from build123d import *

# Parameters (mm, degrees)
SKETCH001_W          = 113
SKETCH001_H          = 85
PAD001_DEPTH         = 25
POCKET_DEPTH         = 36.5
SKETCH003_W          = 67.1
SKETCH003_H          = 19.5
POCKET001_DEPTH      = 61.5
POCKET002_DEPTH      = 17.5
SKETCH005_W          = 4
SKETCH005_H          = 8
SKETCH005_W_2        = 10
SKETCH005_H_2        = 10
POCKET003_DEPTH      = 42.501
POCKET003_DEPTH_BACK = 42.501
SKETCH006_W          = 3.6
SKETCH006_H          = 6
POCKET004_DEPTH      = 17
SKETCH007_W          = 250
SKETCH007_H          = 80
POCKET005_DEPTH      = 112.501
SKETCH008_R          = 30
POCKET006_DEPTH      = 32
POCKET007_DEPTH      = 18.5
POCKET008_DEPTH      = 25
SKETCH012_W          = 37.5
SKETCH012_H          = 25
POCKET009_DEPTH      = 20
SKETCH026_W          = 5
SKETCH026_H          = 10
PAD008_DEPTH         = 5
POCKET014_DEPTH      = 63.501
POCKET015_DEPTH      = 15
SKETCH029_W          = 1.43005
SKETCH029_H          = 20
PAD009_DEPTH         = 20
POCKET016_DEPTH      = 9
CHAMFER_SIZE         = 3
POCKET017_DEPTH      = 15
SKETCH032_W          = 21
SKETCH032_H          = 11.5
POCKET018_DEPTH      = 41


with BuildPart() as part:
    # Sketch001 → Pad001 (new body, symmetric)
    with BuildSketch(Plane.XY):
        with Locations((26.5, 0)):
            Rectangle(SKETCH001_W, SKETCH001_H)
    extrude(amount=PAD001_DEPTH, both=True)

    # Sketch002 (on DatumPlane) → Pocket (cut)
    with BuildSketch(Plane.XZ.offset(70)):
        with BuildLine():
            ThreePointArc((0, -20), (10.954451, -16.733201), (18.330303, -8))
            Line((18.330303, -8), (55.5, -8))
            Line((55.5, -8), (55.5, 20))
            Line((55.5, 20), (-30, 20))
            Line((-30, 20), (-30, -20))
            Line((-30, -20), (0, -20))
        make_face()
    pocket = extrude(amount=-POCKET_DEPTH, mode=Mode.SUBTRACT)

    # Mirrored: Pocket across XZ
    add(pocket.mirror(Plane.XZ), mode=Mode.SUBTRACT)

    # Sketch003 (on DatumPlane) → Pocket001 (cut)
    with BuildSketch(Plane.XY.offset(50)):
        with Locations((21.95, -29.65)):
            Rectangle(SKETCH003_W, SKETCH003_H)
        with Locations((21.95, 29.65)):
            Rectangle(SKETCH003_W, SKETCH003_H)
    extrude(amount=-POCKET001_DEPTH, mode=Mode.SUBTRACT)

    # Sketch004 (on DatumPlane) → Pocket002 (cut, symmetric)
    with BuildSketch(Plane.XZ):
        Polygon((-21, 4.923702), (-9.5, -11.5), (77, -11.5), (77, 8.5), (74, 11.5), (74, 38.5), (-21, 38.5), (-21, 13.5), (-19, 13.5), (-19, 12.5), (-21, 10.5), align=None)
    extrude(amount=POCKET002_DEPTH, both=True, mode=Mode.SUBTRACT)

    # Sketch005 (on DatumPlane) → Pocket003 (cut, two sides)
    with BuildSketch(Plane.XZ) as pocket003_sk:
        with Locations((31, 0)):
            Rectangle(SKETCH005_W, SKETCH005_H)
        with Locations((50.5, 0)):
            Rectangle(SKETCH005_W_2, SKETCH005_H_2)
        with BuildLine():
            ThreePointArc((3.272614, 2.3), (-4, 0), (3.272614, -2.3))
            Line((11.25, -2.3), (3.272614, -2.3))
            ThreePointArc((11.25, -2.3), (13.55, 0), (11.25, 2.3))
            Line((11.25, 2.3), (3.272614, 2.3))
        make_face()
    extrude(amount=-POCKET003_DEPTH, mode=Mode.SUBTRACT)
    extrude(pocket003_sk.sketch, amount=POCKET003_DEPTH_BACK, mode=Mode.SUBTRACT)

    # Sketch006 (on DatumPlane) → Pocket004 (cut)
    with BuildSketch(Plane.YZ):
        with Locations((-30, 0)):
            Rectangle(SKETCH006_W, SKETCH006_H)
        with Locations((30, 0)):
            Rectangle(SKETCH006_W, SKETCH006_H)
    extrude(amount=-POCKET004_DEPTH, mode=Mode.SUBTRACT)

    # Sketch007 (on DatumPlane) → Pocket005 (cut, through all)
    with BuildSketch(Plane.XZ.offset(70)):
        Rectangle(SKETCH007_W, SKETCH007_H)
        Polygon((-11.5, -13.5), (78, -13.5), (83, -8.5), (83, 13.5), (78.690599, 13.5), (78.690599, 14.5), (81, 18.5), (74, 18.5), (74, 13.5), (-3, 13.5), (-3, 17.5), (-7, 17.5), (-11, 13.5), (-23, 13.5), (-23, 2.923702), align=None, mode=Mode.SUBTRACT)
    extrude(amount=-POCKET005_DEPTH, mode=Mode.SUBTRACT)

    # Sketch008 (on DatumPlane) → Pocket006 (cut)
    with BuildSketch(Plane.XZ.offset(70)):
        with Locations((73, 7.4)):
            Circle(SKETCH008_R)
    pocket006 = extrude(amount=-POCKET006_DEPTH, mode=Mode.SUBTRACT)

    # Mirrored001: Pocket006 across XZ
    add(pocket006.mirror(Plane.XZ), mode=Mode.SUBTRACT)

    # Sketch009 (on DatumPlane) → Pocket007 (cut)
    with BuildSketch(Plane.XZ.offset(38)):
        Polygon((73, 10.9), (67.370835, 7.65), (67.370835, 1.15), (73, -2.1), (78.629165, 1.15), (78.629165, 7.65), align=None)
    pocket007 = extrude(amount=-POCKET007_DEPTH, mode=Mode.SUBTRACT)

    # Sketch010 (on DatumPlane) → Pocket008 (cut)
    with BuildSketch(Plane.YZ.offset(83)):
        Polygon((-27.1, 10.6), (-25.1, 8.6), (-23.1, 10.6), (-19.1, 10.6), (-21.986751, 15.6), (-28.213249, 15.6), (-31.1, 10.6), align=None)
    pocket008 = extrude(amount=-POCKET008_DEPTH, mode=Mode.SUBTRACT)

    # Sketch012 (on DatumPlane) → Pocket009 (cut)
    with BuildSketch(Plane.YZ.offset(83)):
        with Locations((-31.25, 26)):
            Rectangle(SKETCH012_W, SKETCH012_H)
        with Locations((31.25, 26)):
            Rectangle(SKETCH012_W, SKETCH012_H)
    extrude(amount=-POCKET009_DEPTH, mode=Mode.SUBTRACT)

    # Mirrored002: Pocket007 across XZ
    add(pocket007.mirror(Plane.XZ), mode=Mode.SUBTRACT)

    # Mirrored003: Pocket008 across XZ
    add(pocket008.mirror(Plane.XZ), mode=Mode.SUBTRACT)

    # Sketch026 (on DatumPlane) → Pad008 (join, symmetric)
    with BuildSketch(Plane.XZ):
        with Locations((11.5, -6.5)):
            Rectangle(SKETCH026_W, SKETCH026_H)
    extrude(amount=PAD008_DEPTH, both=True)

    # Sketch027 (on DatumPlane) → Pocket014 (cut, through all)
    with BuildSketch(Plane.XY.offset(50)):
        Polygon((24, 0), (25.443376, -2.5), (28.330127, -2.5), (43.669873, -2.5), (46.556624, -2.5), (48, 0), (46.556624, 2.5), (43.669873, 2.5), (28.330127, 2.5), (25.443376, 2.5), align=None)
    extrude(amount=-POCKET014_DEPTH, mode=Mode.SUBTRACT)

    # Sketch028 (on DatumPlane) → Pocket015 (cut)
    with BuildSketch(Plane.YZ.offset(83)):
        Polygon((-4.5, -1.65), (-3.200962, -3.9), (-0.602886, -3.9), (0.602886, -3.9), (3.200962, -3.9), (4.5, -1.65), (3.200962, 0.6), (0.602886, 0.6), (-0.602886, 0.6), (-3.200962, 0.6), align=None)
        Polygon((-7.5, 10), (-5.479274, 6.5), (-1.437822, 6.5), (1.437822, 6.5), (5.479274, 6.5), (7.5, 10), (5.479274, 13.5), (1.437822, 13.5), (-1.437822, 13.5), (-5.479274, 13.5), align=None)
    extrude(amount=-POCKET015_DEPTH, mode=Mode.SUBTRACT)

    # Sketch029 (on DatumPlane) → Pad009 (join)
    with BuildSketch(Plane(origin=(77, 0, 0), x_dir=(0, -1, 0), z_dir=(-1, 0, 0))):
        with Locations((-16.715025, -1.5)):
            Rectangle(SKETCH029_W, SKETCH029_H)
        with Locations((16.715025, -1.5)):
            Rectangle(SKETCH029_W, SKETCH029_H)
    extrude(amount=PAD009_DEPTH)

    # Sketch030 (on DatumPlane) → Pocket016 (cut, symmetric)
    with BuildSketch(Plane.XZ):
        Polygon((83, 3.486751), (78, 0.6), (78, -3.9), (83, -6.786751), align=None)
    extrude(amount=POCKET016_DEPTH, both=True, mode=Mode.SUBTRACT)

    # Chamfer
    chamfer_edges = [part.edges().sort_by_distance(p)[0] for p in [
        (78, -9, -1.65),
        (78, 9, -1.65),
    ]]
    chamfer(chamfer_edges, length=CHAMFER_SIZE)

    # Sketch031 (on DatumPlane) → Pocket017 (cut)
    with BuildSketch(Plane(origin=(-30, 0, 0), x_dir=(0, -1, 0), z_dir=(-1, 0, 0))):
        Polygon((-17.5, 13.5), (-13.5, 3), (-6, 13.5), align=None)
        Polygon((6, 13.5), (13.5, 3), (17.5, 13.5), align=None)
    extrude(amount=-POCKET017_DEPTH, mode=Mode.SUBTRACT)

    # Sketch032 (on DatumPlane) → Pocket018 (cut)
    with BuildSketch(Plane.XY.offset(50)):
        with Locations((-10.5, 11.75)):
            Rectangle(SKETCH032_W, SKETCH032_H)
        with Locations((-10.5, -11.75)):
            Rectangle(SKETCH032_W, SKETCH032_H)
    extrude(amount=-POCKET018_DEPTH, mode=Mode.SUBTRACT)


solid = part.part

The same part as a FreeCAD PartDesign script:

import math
import FreeCAD as App
import Part
import Sketcher

V = App.Vector
Q = App.Units.Quantity


def edges_at(feature, points):
    """Names of the edges that pass closest to the given points."""
    edges = feature.Shape.Edges
    near = lambda p: min(range(len(edges)), key=lambda i: edges[i].distToShape(Part.Vertex(*p))[0])
    return sorted({f"Edge{near(p) + 1}" for p in points})

doc = App.newDocument("Part")
body = doc.addObject("PartDesign::Body", "Body")

sketch1 = doc.addObject("Sketcher::SketchObject", "Sketch")
body.addObject(sketch1)
sketch1.AttachmentSupport = (doc.XY_Plane, [""])
sketch1.MapMode = "FlatFace"
sketch1.addGeometry(Part.LineSegment(V(-30, 42.5, 0), V(-30, -42.5, 0)), False)
sketch1.addGeometry(Part.LineSegment(V(-30, -42.5, 0), V(83, -42.5, 0)), False)
sketch1.addGeometry(Part.LineSegment(V(83, -42.5, 0), V(83, 42.5, 0)), False)
sketch1.addGeometry(Part.LineSegment(V(83, 42.5, 0), V(-30, 42.5, 0)), False)
sketch1.addConstraint(Sketcher.Constraint("Coincident", 0, 2, 1, 1))
sketch1.addConstraint(Sketcher.Constraint("Coincident", 1, 2, 2, 1))
sketch1.addConstraint(Sketcher.Constraint("Coincident", 2, 2, 3, 1))
sketch1.addConstraint(Sketcher.Constraint("Coincident", 3, 2, 0, 1))
sketch1.addConstraint(Sketcher.Constraint("Vertical", 0))
sketch1.addConstraint(Sketcher.Constraint("Horizontal", 1))
sketch1.addConstraint(Sketcher.Constraint("Vertical", 2))
sketch1.addConstraint(Sketcher.Constraint("Horizontal", 3))
sketch1.addConstraint(Sketcher.Constraint("DistanceX", 1, 1, 1, 2, 113.0))
sketch1.addConstraint(Sketcher.Constraint("DistanceY", 0, 2, 0, 1, 85.0))
sketch1.addConstraint(Sketcher.Constraint("DistanceX", 0, 2, -1, 1, 30.0))
sketch1.addConstraint(Sketcher.Constraint("DistanceY", 0, 2, -1, 1, 42.5))
pad1 = doc.addObject("PartDesign::Pad", "Pad")
body.addObject(pad1)
pad1.Profile = sketch1
pad1.Length = 50
pad1.Midplane = True

sketch2 = doc.addObject("Sketcher::SketchObject", "Sketch001")
body.addObject(sketch2)
sketch2.AttachmentSupport = (doc.XZ_Plane, [""])
sketch2.MapMode = "FlatFace"
sketch2.AttachmentOffset = App.Placement(V(0, 0, 70), App.Rotation())
sketch2.addGeometry(Part.ArcOfCircle(Part.Circle(V(0.000001, -0.000001, 0), V(0, 0, 1), 19.999999), math.radians(-90.000002), math.radians(-23.578177)), False)
sketch2.addGeometry(Part.LineSegment(V(18.330303, -8, 0), V(55.5, -8, 0)), False)
sketch2.addGeometry(Part.LineSegment(V(55.5, -8, 0), V(55.5, 20, 0)), False)
sketch2.addGeometry(Part.LineSegment(V(55.5, 20, 0), V(-30, 20, 0)), False)
sketch2.addGeometry(Part.LineSegment(V(-30, 20, 0), V(-30, -20, 0)), False)
sketch2.addGeometry(Part.LineSegment(V(-30, -20, 0), V(0, -20, 0)), False)
sketch2.addConstraint(Sketcher.Constraint("Coincident", 0, 2, 1, 1))
sketch2.addConstraint(Sketcher.Constraint("Coincident", 1, 2, 2, 1))
sketch2.addConstraint(Sketcher.Constraint("Coincident", 2, 2, 3, 1))
sketch2.addConstraint(Sketcher.Constraint("Coincident", 3, 2, 4, 1))
sketch2.addConstraint(Sketcher.Constraint("Coincident", 4, 2, 5, 1))
sketch2.addConstraint(Sketcher.Constraint("Tangent", 5, 2, 0, 1))
sketch2.addConstraint(Sketcher.Constraint("Horizontal", 1))
sketch2.addConstraint(Sketcher.Constraint("Vertical", 2))
sketch2.addConstraint(Sketcher.Constraint("Horizontal", 3))
sketch2.addConstraint(Sketcher.Constraint("Vertical", 4))
sketch2.addConstraint(Sketcher.Constraint("Horizontal", 5))
sketch2.addConstraint(Sketcher.Constraint("Coincident", 0, 3, -1, 1))
sketch2.addConstraint(Sketcher.Constraint("Radius", 0, 19.999999))
sketch2.addConstraint(Sketcher.Constraint("DistanceX", 5, 1, 5, 2, 30.0))
sketch2.addConstraint(Sketcher.Constraint("DistanceY", 2, 1, 2, 2, 28.0))
sketch2.addConstraint(Sketcher.Constraint("DistanceY", 4, 2, 4, 1, 40.0))
sketch2.addConstraint(Sketcher.Constraint("DistanceX", 3, 2, 3, 1, 85.5))
pocket1 = doc.addObject("PartDesign::Pocket", "Pocket")
body.addObject(pocket1)
pocket1.Profile = sketch2
pocket1.Length = 36.5
doc.recompute()

mirrored = doc.addObject("PartDesign::Mirrored", "Mirrored")
body.addObject(mirrored)
mirrored.Originals = [pocket1]
mirrored.MirrorPlane = (doc.XZ_Plane, [""])
body.Tip = mirrored

sketch3 = doc.addObject("Sketcher::SketchObject", "Sketch002")
body.addObject(sketch3)
sketch3.AttachmentSupport = (doc.XY_Plane, [""])
sketch3.MapMode = "FlatFace"
sketch3.AttachmentOffset = App.Placement(V(0, 0, 50), App.Rotation())
sketch3.addGeometry(Part.LineSegment(V(-11.6, -19.9, 0), V(-11.6, -39.4, 0)), False)
sketch3.addGeometry(Part.LineSegment(V(-11.6, -39.4, 0), V(55.5, -39.4, 0)), False)
sketch3.addGeometry(Part.LineSegment(V(55.5, -39.4, 0), V(55.5, -19.9, 0)), False)
sketch3.addGeometry(Part.LineSegment(V(55.5, -19.9, 0), V(-11.6, -19.9, 0)), False)
sketch3.addGeometry(Part.LineSegment(V(-11.6, 39.4, 0), V(-11.6, 19.9, 0)), False)
sketch3.addGeometry(Part.LineSegment(V(-11.6, 19.9, 0), V(55.5, 19.9, 0)), False)
sketch3.addGeometry(Part.LineSegment(V(55.5, 19.9, 0), V(55.5, 39.4, 0)), False)
sketch3.addGeometry(Part.LineSegment(V(55.5, 39.4, 0), V(-11.6, 39.4, 0)), False)
sketch3.addConstraint(Sketcher.Constraint("Coincident", 0, 2, 1, 1))
sketch3.addConstraint(Sketcher.Constraint("Coincident", 1, 2, 2, 1))
sketch3.addConstraint(Sketcher.Constraint("Coincident", 2, 2, 3, 1))
sketch3.addConstraint(Sketcher.Constraint("Coincident", 3, 2, 0, 1))
sketch3.addConstraint(Sketcher.Constraint("Coincident", 4, 2, 5, 1))
sketch3.addConstraint(Sketcher.Constraint("Coincident", 5, 2, 6, 1))
sketch3.addConstraint(Sketcher.Constraint("Coincident", 6, 2, 7, 1))
sketch3.addConstraint(Sketcher.Constraint("Coincident", 7, 2, 4, 1))
sketch3.addConstraint(Sketcher.Constraint("Vertical", 0))
sketch3.addConstraint(Sketcher.Constraint("Horizontal", 1))
sketch3.addConstraint(Sketcher.Constraint("Vertical", 2))
sketch3.addConstraint(Sketcher.Constraint("Horizontal", 3))
sketch3.addConstraint(Sketcher.Constraint("Vertical", 4))
sketch3.addConstraint(Sketcher.Constraint("Horizontal", 5))
sketch3.addConstraint(Sketcher.Constraint("Vertical", 6))
sketch3.addConstraint(Sketcher.Constraint("Horizontal", 7))
sketch3.addConstraint(Sketcher.Constraint("Symmetric", 3, 2, 4, 2, -1))
sketch3.addConstraint(Sketcher.Constraint("Symmetric", 1, 2, 6, 2, -1))
sketch3.addConstraint(Sketcher.Constraint("DistanceX", 1, 1, 1, 2, 67.1))
sketch3.addConstraint(Sketcher.Constraint("DistanceY", 0, 2, 0, 1, 19.5))
sketch3.addConstraint(Sketcher.Constraint("DistanceX", 0, 2, -1, 1, 11.6))
sketch3.addConstraint(Sketcher.Constraint("DistanceY", 0, 2, -1, 1, 39.4))
pocket2 = doc.addObject("PartDesign::Pocket", "Pocket001")
body.addObject(pocket2)
pocket2.Profile = sketch3
pocket2.Length = 61.5

sketch4 = doc.addObject("Sketcher::SketchObject", "Sketch003")
body.addObject(sketch4)
sketch4.AttachmentSupport = (doc.XZ_Plane, [""])
sketch4.MapMode = "FlatFace"
sketch4.addGeometry(Part.LineSegment(V(-21, 4.923702, 0), V(-9.5, -11.5, 0)), False)
sketch4.addGeometry(Part.LineSegment(V(-9.5, -11.5, 0), V(77, -11.5, 0)), False)
sketch4.addGeometry(Part.LineSegment(V(77, -11.5, 0), V(77, 8.5, 0)), False)
sketch4.addGeometry(Part.LineSegment(V(77, 8.5, 0), V(74, 11.5, 0)), False)
sketch4.addGeometry(Part.LineSegment(V(74, 11.5, 0), V(74, 38.5, 0)), False)
sketch4.addGeometry(Part.LineSegment(V(74, 38.5, 0), V(-21, 38.5, 0)), False)
sketch4.addGeometry(Part.LineSegment(V(-21, 38.5, 0), V(-21, 13.5, 0)), False)
sketch4.addGeometry(Part.LineSegment(V(-21, 13.5, 0), V(-19, 13.5, 0)), False)
sketch4.addGeometry(Part.LineSegment(V(-19, 13.5, 0), V(-19, 12.5, 0)), False)
sketch4.addGeometry(Part.LineSegment(V(-19, 12.5, 0), V(-21, 10.5, 0)), False)
sketch4.addGeometry(Part.LineSegment(V(-21, 10.5, 0), V(-21, 4.923702, 0)), False)
sketch4.addConstraint(Sketcher.Constraint("Coincident", 0, 2, 1, 1))
sketch4.addConstraint(Sketcher.Constraint("Coincident", 1, 2, 2, 1))
sketch4.addConstraint(Sketcher.Constraint("Coincident", 2, 2, 3, 1))
sketch4.addConstraint(Sketcher.Constraint("Coincident", 3, 2, 4, 1))
sketch4.addConstraint(Sketcher.Constraint("Coincident", 4, 2, 5, 1))
sketch4.addConstraint(Sketcher.Constraint("Coincident", 5, 2, 6, 1))
sketch4.addConstraint(Sketcher.Constraint("Coincident", 6, 2, 7, 1))
sketch4.addConstraint(Sketcher.Constraint("Coincident", 7, 2, 8, 1))
sketch4.addConstraint(Sketcher.Constraint("Coincident", 8, 2, 9, 1))
sketch4.addConstraint(Sketcher.Constraint("Coincident", 9, 2, 10, 1))
sketch4.addConstraint(Sketcher.Constraint("Coincident", 10, 2, 0, 1))
sketch4.addConstraint(Sketcher.Constraint("Horizontal", 1))
sketch4.addConstraint(Sketcher.Constraint("Vertical", 2))
sketch4.addConstraint(Sketcher.Constraint("Vertical", 4))
sketch4.addConstraint(Sketcher.Constraint("Horizontal", 5))
sketch4.addConstraint(Sketcher.Constraint("Vertical", 6))
sketch4.addConstraint(Sketcher.Constraint("Horizontal", 7))
sketch4.addConstraint(Sketcher.Constraint("Vertical", 8))
sketch4.addConstraint(Sketcher.Constraint("Vertical", 10))
sketch4.addConstraint(Sketcher.Constraint("Perpendicular", 3, 9))
sketch4.addConstraint(Sketcher.Constraint("Vertical", 6, 2, 9, 2))
sketch4.addConstraint(Sketcher.Constraint("DistanceX", 5, 2, 5, 1, 95.0))
sketch4.addConstraint(Sketcher.Constraint("DistanceX", 7, 1, 7, 2, 2.0))
sketch4.addConstraint(Sketcher.Constraint("DistanceY", 2, 1, 2, 2, 20.0))
sketch4.addConstraint(Sketcher.Constraint("DistanceY", 4, 1, 4, 2, 27.0))
sketch4.addConstraint(Sketcher.Constraint("DistanceY", 6, 2, 6, 1, 25.0))
sketch4.addConstraint(Sketcher.Constraint("DistanceY", 8, 2, 8, 1, 1.0))
sketch4.addConstraint(Sketcher.Constraint("Angle", 0, Q("-55 deg")))
sketch4.addConstraint(Sketcher.Constraint("Angle", 3, Q("135 deg")))
sketch4.addConstraint(Sketcher.Constraint("DistanceX", 1, 1, 1, 2, 86.5))
sketch4.addConstraint(Sketcher.Constraint("DistanceX", -1, 1, 1, 2, 77.0))
sketch4.addConstraint(Sketcher.Constraint("DistanceX", -1, 1, 3, 2, 74.0))
sketch4.addConstraint(Sketcher.Constraint("DistanceY", 0, 2, -1, 1, 11.5))
pocket3 = doc.addObject("PartDesign::Pocket", "Pocket002")
body.addObject(pocket3)
pocket3.Profile = sketch4
pocket3.Length = 35
pocket3.Midplane = True

sketch5 = doc.addObject("Sketcher::SketchObject", "Sketch004")
body.addObject(sketch5)
sketch5.AttachmentSupport = (doc.XZ_Plane, [""])
sketch5.MapMode = "FlatFace"
sketch5.addGeometry(Part.LineSegment(V(29, 4, 0), V(29, -4, 0)), False)
sketch5.addGeometry(Part.LineSegment(V(29, -4, 0), V(33, -4, 0)), False)
sketch5.addGeometry(Part.LineSegment(V(33, -4, 0), V(33, 4, 0)), False)
sketch5.addGeometry(Part.LineSegment(V(33, 4, 0), V(29, 4, 0)), False)
sketch5.addGeometry(Part.LineSegment(V(45.5, 5, 0), V(45.5, -5, 0)), False)
sketch5.addGeometry(Part.LineSegment(V(45.5, -5, 0), V(55.5, -5, 0)), False)
sketch5.addGeometry(Part.LineSegment(V(55.5, -5, 0), V(55.5, 5, 0)), False)
sketch5.addGeometry(Part.LineSegment(V(55.5, 5, 0), V(45.5, 5, 0)), False)
sketch5.addGeometry(Part.ArcOfCircle(Part.Circle(V(0, 0, 0), V(0, 0, 1), 4), math.radians(35.099631), math.radians(324.900369)), False)
sketch5.addGeometry(Part.LineSegment(V(3.272614, -2.3, 0), V(11.25, -2.3, 0)), False)
sketch5.addGeometry(Part.ArcOfCircle(Part.Circle(V(11.25, 0, 0), V(0, 0, 1), 2.3), math.radians(-90), math.radians(90)), False)
sketch5.addGeometry(Part.LineSegment(V(11.25, 2.3, 0), V(3.272614, 2.3, 0)), False)
sketch5.addConstraint(Sketcher.Constraint("Coincident", 0, 2, 1, 1))
sketch5.addConstraint(Sketcher.Constraint("Coincident", 1, 2, 2, 1))
sketch5.addConstraint(Sketcher.Constraint("Coincident", 2, 2, 3, 1))
sketch5.addConstraint(Sketcher.Constraint("Coincident", 3, 2, 0, 1))
sketch5.addConstraint(Sketcher.Constraint("Coincident", 4, 2, 5, 1))
sketch5.addConstraint(Sketcher.Constraint("Coincident", 5, 2, 6, 1))
sketch5.addConstraint(Sketcher.Constraint("Coincident", 6, 2, 7, 1))
sketch5.addConstraint(Sketcher.Constraint("Coincident", 7, 2, 4, 1))
sketch5.addConstraint(Sketcher.Constraint("Coincident", 8, 2, 9, 1))
sketch5.addConstraint(Sketcher.Constraint("Tangent", 9, 2, 10, 1))
sketch5.addConstraint(Sketcher.Constraint("Tangent", 10, 2, 11, 1))
sketch5.addConstraint(Sketcher.Constraint("Coincident", 11, 2, 8, 1))
sketch5.addConstraint(Sketcher.Constraint("Vertical", 0))
sketch5.addConstraint(Sketcher.Constraint("Horizontal", 1))
sketch5.addConstraint(Sketcher.Constraint("Vertical", 2))
sketch5.addConstraint(Sketcher.Constraint("Horizontal", 3))
sketch5.addConstraint(Sketcher.Constraint("Vertical", 4))
sketch5.addConstraint(Sketcher.Constraint("Horizontal", 5))
sketch5.addConstraint(Sketcher.Constraint("Vertical", 6))
sketch5.addConstraint(Sketcher.Constraint("Horizontal", 7))
sketch5.addConstraint(Sketcher.Constraint("Horizontal", 9))
sketch5.addConstraint(Sketcher.Constraint("Horizontal", 11))
sketch5.addConstraint(Sketcher.Constraint("Coincident", 8, 3, -1, 1))
sketch5.addConstraint(Sketcher.Constraint("PointOnObject", 10, 3, -1))
sketch5.addConstraint(Sketcher.Constraint("Equal", 7, 4))
sketch5.addConstraint(Sketcher.Constraint("Radius", 8, 4.0))
sketch5.addConstraint(Sketcher.Constraint("Radius", 10, 2.3))
sketch5.addConstraint(Sketcher.Constraint("DistanceX", 1, 1, 1, 2, 4.0))
sketch5.addConstraint(Sketcher.Constraint("DistanceX", 5, 1, 5, 2, 10.0))
sketch5.addConstraint(Sketcher.Constraint("DistanceY", 0, 2, 0, 1, 8.0))
sketch5.addConstraint(Sketcher.Constraint("DistanceX", -1, 1, 0, 2, 29.0))
sketch5.addConstraint(Sketcher.Constraint("DistanceY", 0, 2, -1, 1, 4.0))
sketch5.addConstraint(Sketcher.Constraint("DistanceY", 4, 2, -1, 1, 5.0))
sketch5.addConstraint(Sketcher.Constraint("DistanceX", -1, 1, 4, 2, 45.5))
sketch5.addConstraint(Sketcher.Constraint("DistanceX", -1, 1, 10, 3, 11.25))
pocket4 = doc.addObject("PartDesign::Pocket", "Pocket003")
body.addObject(pocket4)
pocket4.Profile = sketch5
pocket4.Type = "ThroughAll"
pocket4.Midplane = True

sketch6 = doc.addObject("Sketcher::SketchObject", "Sketch005")
body.addObject(sketch6)
sketch6.AttachmentSupport = (doc.YZ_Plane, [""])
sketch6.MapMode = "FlatFace"
sketch6.addGeometry(Part.LineSegment(V(-31.8, 3, 0), V(-31.8, -3, 0)), False)
sketch6.addGeometry(Part.LineSegment(V(-31.8, -3, 0), V(-28.2, -3, 0)), False)
sketch6.addGeometry(Part.LineSegment(V(-28.2, -3, 0), V(-28.2, 3, 0)), False)
sketch6.addGeometry(Part.LineSegment(V(-28.2, 3, 0), V(-31.8, 3, 0)), False)
sketch6.addGeometry(Part.LineSegment(V(28.2, 3, 0), V(28.2, -3, 0)), False)
sketch6.addGeometry(Part.LineSegment(V(28.2, -3, 0), V(31.8, -3, 0)), False)
sketch6.addGeometry(Part.LineSegment(V(31.8, -3, 0), V(31.8, 3, 0)), False)
sketch6.addGeometry(Part.LineSegment(V(31.8, 3, 0), V(28.2, 3, 0)), False)
sketch6.addConstraint(Sketcher.Constraint("Coincident", 0, 2, 1, 1))
sketch6.addConstraint(Sketcher.Constraint("Coincident", 1, 2, 2, 1))
sketch6.addConstraint(Sketcher.Constraint("Coincident", 2, 2, 3, 1))
sketch6.addConstraint(Sketcher.Constraint("Coincident", 3, 2, 0, 1))
sketch6.addConstraint(Sketcher.Constraint("Coincident", 4, 2, 5, 1))
sketch6.addConstraint(Sketcher.Constraint("Coincident", 5, 2, 6, 1))
sketch6.addConstraint(Sketcher.Constraint("Coincident", 6, 2, 7, 1))
sketch6.addConstraint(Sketcher.Constraint("Coincident", 7, 2, 4, 1))
sketch6.addConstraint(Sketcher.Constraint("Vertical", 0))
sketch6.addConstraint(Sketcher.Constraint("Horizontal", 1))
sketch6.addConstraint(Sketcher.Constraint("Vertical", 2))
sketch6.addConstraint(Sketcher.Constraint("Horizontal", 3))
sketch6.addConstraint(Sketcher.Constraint("Vertical", 4))
sketch6.addConstraint(Sketcher.Constraint("Horizontal", 5))
sketch6.addConstraint(Sketcher.Constraint("Vertical", 6))
sketch6.addConstraint(Sketcher.Constraint("Horizontal", 7))
sketch6.addConstraint(Sketcher.Constraint("Symmetric", 2, 2, 4, 2, -1, 1))
sketch6.addConstraint(Sketcher.Constraint("Symmetric", 0, 2, 6, 2, -1, 1))
sketch6.addConstraint(Sketcher.Constraint("Horizontal", 1, 2, 4, 2))
sketch6.addConstraint(Sketcher.Constraint("DistanceY", 0, 2, 0, 1, 6.0))
sketch6.addConstraint(Sketcher.Constraint("DistanceX", 1, 1, 1, 2, 3.6))
sketch6.addConstraint(Sketcher.Constraint("DistanceX", 0, 2, 4, 2, 60.0))
pocket5 = doc.addObject("PartDesign::Pocket", "Pocket004")
body.addObject(pocket5)
pocket5.Profile = sketch6
pocket5.Length = 17

sketch7 = doc.addObject("Sketcher::SketchObject", "Sketch006")
body.addObject(sketch7)
sketch7.AttachmentSupport = (doc.XZ_Plane, [""])
sketch7.MapMode = "FlatFace"
sketch7.AttachmentOffset = App.Placement(V(0, 0, 70), App.Rotation())
sketch7.addGeometry(Part.LineSegment(V(-125, 40, 0), V(-125, -40, 0)), False)
sketch7.addGeometry(Part.LineSegment(V(-125, -40, 0), V(125, -40, 0)), False)
sketch7.addGeometry(Part.LineSegment(V(125, -40, 0), V(125, 40, 0)), False)
sketch7.addGeometry(Part.LineSegment(V(125, 40, 0), V(-125, 40, 0)), False)
sketch7.addGeometry(Part.LineSegment(V(78, -13.5, 0), V(-11.5, -13.5, 0)), False)
sketch7.addGeometry(Part.LineSegment(V(-11.5, -13.5, 0), V(-23, 2.923702, 0)), False)
sketch7.addGeometry(Part.LineSegment(V(-23, 2.923702, 0), V(-23, 13.5, 0)), False)
sketch7.addGeometry(Part.LineSegment(V(-23, 13.5, 0), V(-11, 13.5, 0)), False)
sketch7.addGeometry(Part.LineSegment(V(-11, 13.5, 0), V(-7, 17.5, 0)), False)
sketch7.addGeometry(Part.LineSegment(V(-7, 17.5, 0), V(-3, 17.5, 0)), False)
sketch7.addGeometry(Part.LineSegment(V(-3, 17.5, 0), V(-3, 13.5, 0)), False)
sketch7.addGeometry(Part.LineSegment(V(-3, 13.5, 0), V(74, 13.5, 0)), False)
sketch7.addGeometry(Part.LineSegment(V(74, 13.5, 0), V(74, 18.5, 0)), False)
sketch7.addGeometry(Part.LineSegment(V(74, 18.5, 0), V(81, 18.5, 0)), False)
sketch7.addGeometry(Part.LineSegment(V(81, 18.5, 0), V(78.690599, 14.5, 0)), False)
sketch7.addGeometry(Part.LineSegment(V(78.690599, 14.5, 0), V(78.690599, 13.5, 0)), False)
sketch7.addGeometry(Part.LineSegment(V(78.690599, 13.5, 0), V(83, 13.5, 0)), False)
sketch7.addGeometry(Part.LineSegment(V(83, 13.5, 0), V(83, -8.5, 0)), False)
sketch7.addGeometry(Part.LineSegment(V(83, -8.5, 0), V(78, -13.5, 0)), False)
sketch7.addConstraint(Sketcher.Constraint("Coincident", 0, 2, 1, 1))
sketch7.addConstraint(Sketcher.Constraint("Coincident", 1, 2, 2, 1))
sketch7.addConstraint(Sketcher.Constraint("Coincident", 2, 2, 3, 1))
sketch7.addConstraint(Sketcher.Constraint("Coincident", 3, 2, 0, 1))
sketch7.addConstraint(Sketcher.Constraint("Coincident", 4, 2, 5, 1))
sketch7.addConstraint(Sketcher.Constraint("Coincident", 5, 2, 6, 1))
sketch7.addConstraint(Sketcher.Constraint("Coincident", 6, 2, 7, 1))
sketch7.addConstraint(Sketcher.Constraint("Coincident", 7, 2, 8, 1))
sketch7.addConstraint(Sketcher.Constraint("Coincident", 8, 2, 9, 1))
sketch7.addConstraint(Sketcher.Constraint("Coincident", 9, 2, 10, 1))
sketch7.addConstraint(Sketcher.Constraint("Coincident", 10, 2, 11, 1))
sketch7.addConstraint(Sketcher.Constraint("Coincident", 11, 2, 12, 1))
sketch7.addConstraint(Sketcher.Constraint("Coincident", 12, 2, 13, 1))
sketch7.addConstraint(Sketcher.Constraint("Coincident", 13, 2, 14, 1))
sketch7.addConstraint(Sketcher.Constraint("Coincident", 14, 2, 15, 1))
sketch7.addConstraint(Sketcher.Constraint("Coincident", 15, 2, 16, 1))
sketch7.addConstraint(Sketcher.Constraint("Coincident", 16, 2, 17, 1))
sketch7.addConstraint(Sketcher.Constraint("Coincident", 17, 2, 18, 1))
sketch7.addConstraint(Sketcher.Constraint("Coincident", 18, 2, 4, 1))
sketch7.addConstraint(Sketcher.Constraint("Vertical", 0))
sketch7.addConstraint(Sketcher.Constraint("Horizontal", 1))
sketch7.addConstraint(Sketcher.Constraint("Vertical", 2))
sketch7.addConstraint(Sketcher.Constraint("Horizontal", 3))
sketch7.addConstraint(Sketcher.Constraint("Horizontal", 4))
sketch7.addConstraint(Sketcher.Constraint("Vertical", 6))
sketch7.addConstraint(Sketcher.Constraint("Horizontal", 7))
sketch7.addConstraint(Sketcher.Constraint("Horizontal", 9))
sketch7.addConstraint(Sketcher.Constraint("Vertical", 10))
sketch7.addConstraint(Sketcher.Constraint("Horizontal", 11))
sketch7.addConstraint(Sketcher.Constraint("Vertical", 12))
sketch7.addConstraint(Sketcher.Constraint("Horizontal", 13))
sketch7.addConstraint(Sketcher.Constraint("Vertical", 15))
sketch7.addConstraint(Sketcher.Constraint("Horizontal", 16))
sketch7.addConstraint(Sketcher.Constraint("Vertical", 17))
sketch7.addConstraint(Sketcher.Constraint("Symmetric", 0, 2, 2, 2, -1, 1))
sketch7.addConstraint(Sketcher.Constraint("Parallel", 8, 18))
sketch7.addConstraint(Sketcher.Constraint("Horizontal", 7, 2, 10, 2))
sketch7.addConstraint(Sketcher.Constraint("Horizontal", 11, 2, 15, 2))
sketch7.addConstraint(Sketcher.Constraint("Equal", 9, 10))
sketch7.addConstraint(Sketcher.Constraint("DistanceX", 1, 1, 1, 2, 250.0))
sketch7.addConstraint(Sketcher.Constraint("DistanceX", 7, 1, 7, 2, 12.0))
sketch7.addConstraint(Sketcher.Constraint("DistanceX", 9, 1, 9, 2, 4.0))
sketch7.addConstraint(Sketcher.Constraint("DistanceX", 11, 1, 11, 2, 77.0))
sketch7.addConstraint(Sketcher.Constraint("DistanceX", 13, 1, 13, 2, 7.0))
sketch7.addConstraint(Sketcher.Constraint("DistanceY", 0, 2, 0, 1, 80.0))
sketch7.addConstraint(Sketcher.Constraint("DistanceY", 12, 1, 12, 2, 5.0))
sketch7.addConstraint(Sketcher.Constraint("DistanceY", 15, 2, 15, 1, 1.0))
sketch7.addConstraint(Sketcher.Constraint("DistanceY", 17, 2, 17, 1, 22.0))
sketch7.addConstraint(Sketcher.Constraint("Angle", 5, Q("125 deg")))
sketch7.addConstraint(Sketcher.Constraint("Angle", 8, Q("45 deg")))
sketch7.addConstraint(Sketcher.Constraint("Angle", 14, Q("-119.999999 deg")))
sketch7.addConstraint(Sketcher.Constraint("DistanceX", 4, 2, 4, 1, 89.5))
sketch7.addConstraint(Sketcher.Constraint("DistanceX", 5, 2, -1, 1, 23.0))
sketch7.addConstraint(Sketcher.Constraint("DistanceX", -1, 1, 16, 2, 83.0))
sketch7.addConstraint(Sketcher.Constraint("DistanceX", -1, 1, 18, 2, 78.0))
sketch7.addConstraint(Sketcher.Constraint("DistanceY", 4, 2, -1, 1, 13.5))
pocket6 = doc.addObject("PartDesign::Pocket", "Pocket005")
body.addObject(pocket6)
pocket6.Profile = sketch7
pocket6.Type = "ThroughAll"

sketch8 = doc.addObject("Sketcher::SketchObject", "Sketch007")
body.addObject(sketch8)
sketch8.AttachmentSupport = (doc.XZ_Plane, [""])
sketch8.MapMode = "FlatFace"
sketch8.AttachmentOffset = App.Placement(V(0, 0, 70), App.Rotation())
sketch8.addGeometry(Part.Circle(V(73, 7.4, 0), V(0, 0, 1), 30), False)
sketch8.addConstraint(Sketcher.Constraint("Diameter", 0, 60.0))
sketch8.addConstraint(Sketcher.Constraint("DistanceX", -1, 1, 0, 3, 73.0))
sketch8.addConstraint(Sketcher.Constraint("DistanceY", -1, 1, 0, 3, 7.4))
pocket7 = doc.addObject("PartDesign::Pocket", "Pocket006")
body.addObject(pocket7)
pocket7.Profile = sketch8
pocket7.Length = 32
doc.recompute()

mirrored2 = doc.addObject("PartDesign::Mirrored", "Mirrored001")
body.addObject(mirrored2)
mirrored2.Originals = [pocket7]
mirrored2.MirrorPlane = (doc.XZ_Plane, [""])
body.Tip = mirrored2

sketch9 = doc.addObject("Sketcher::SketchObject", "Sketch008")
body.addObject(sketch9)
sketch9.AttachmentSupport = (doc.XZ_Plane, [""])
sketch9.MapMode = "FlatFace"
sketch9.AttachmentOffset = App.Placement(V(0, 0, 38), App.Rotation())
sketch9.addGeometry(Part.LineSegment(V(73, 10.9, 0), V(67.370835, 7.65, 0)), False)
sketch9.addGeometry(Part.LineSegment(V(67.370835, 7.65, 0), V(67.370835, 1.15, 0)), False)
sketch9.addGeometry(Part.LineSegment(V(67.370835, 1.15, 0), V(73, -2.1, 0)), False)
sketch9.addGeometry(Part.LineSegment(V(73, -2.1, 0), V(78.629165, 1.15, 0)), False)
sketch9.addGeometry(Part.LineSegment(V(78.629165, 1.15, 0), V(78.629165, 7.65, 0)), False)
sketch9.addGeometry(Part.LineSegment(V(78.629165, 7.65, 0), V(73, 10.9, 0)), False)
sketch9.addConstraint(Sketcher.Constraint("Coincident", 0, 2, 1, 1))
sketch9.addConstraint(Sketcher.Constraint("Coincident", 1, 2, 2, 1))
sketch9.addConstraint(Sketcher.Constraint("Coincident", 2, 2, 3, 1))
sketch9.addConstraint(Sketcher.Constraint("Coincident", 3, 2, 4, 1))
sketch9.addConstraint(Sketcher.Constraint("Coincident", 4, 2, 5, 1))
sketch9.addConstraint(Sketcher.Constraint("Coincident", 5, 2, 0, 1))
sketch9.addConstraint(Sketcher.Constraint("Vertical", 1))
sketch9.addConstraint(Sketcher.Constraint("Vertical", 4))
sketch9.addConstraint(Sketcher.Constraint("Parallel", 0, 3))
sketch9.addConstraint(Sketcher.Constraint("Parallel", 2, 5))
sketch9.addConstraint(Sketcher.Constraint("Horizontal", 1, 2, 3, 2))
sketch9.addConstraint(Sketcher.Constraint("Horizontal", 0, 2, 4, 2))
sketch9.addConstraint(Sketcher.Constraint("Vertical", 2, 2, 5, 2))
sketch9.addConstraint(Sketcher.Constraint("Angle", 0, Q("-149.999999 deg")))
sketch9.addConstraint(Sketcher.Constraint("DistanceY", 1, 2, 1, 1, 6.5))
sketch9.addConstraint(Sketcher.Constraint("DistanceX", -1, 1, 2, 2, 73.0))
sketch9.addConstraint(Sketcher.Constraint("DistanceY", 2, 2, 5, 2, 13.0))
sketch9.addConstraint(Sketcher.Constraint("DistanceY", 2, 2, -1, 1, 2.1))
pocket8 = doc.addObject("PartDesign::Pocket", "Pocket007")
body.addObject(pocket8)
pocket8.Profile = sketch9
pocket8.Length = 18.5

sketch10 = doc.addObject("Sketcher::SketchObject", "Sketch009")
body.addObject(sketch10)
sketch10.AttachmentSupport = (doc.YZ_Plane, [""])
sketch10.MapMode = "FlatFace"
sketch10.AttachmentOffset = App.Placement(V(0, 0, 83), App.Rotation())
sketch10.addGeometry(Part.LineSegment(V(-27.1, 10.6, 0), V(-25.1, 8.6, 0)), False)
sketch10.addGeometry(Part.LineSegment(V(-25.1, 8.6, 0), V(-23.1, 10.6, 0)), False)
sketch10.addGeometry(Part.LineSegment(V(-23.1, 10.6, 0), V(-19.1, 10.6, 0)), False)
sketch10.addGeometry(Part.LineSegment(V(-19.1, 10.6, 0), V(-21.986751, 15.6, 0)), False)
sketch10.addGeometry(Part.LineSegment(V(-21.986751, 15.6, 0), V(-28.213249, 15.6, 0)), False)
sketch10.addGeometry(Part.LineSegment(V(-28.213249, 15.6, 0), V(-31.1, 10.6, 0)), False)
sketch10.addGeometry(Part.LineSegment(V(-31.1, 10.6, 0), V(-27.1, 10.6, 0)), False)
sketch10.addConstraint(Sketcher.Constraint("Coincident", 0, 2, 1, 1))
sketch10.addConstraint(Sketcher.Constraint("Coincident", 1, 2, 2, 1))
sketch10.addConstraint(Sketcher.Constraint("Coincident", 2, 2, 3, 1))
sketch10.addConstraint(Sketcher.Constraint("Coincident", 3, 2, 4, 1))
sketch10.addConstraint(Sketcher.Constraint("Coincident", 4, 2, 5, 1))
sketch10.addConstraint(Sketcher.Constraint("Coincident", 5, 2, 6, 1))
sketch10.addConstraint(Sketcher.Constraint("Coincident", 6, 2, 0, 1))
sketch10.addConstraint(Sketcher.Constraint("Horizontal", 2))
sketch10.addConstraint(Sketcher.Constraint("Horizontal", 4))
sketch10.addConstraint(Sketcher.Constraint("Horizontal", 6))
sketch10.addConstraint(Sketcher.Constraint("Perpendicular", 0, 1))
sketch10.addConstraint(Sketcher.Constraint("Horizontal", 2, 2, 5, 2))
sketch10.addConstraint(Sketcher.Constraint("Equal", 2, 6))
sketch10.addConstraint(Sketcher.Constraint("Equal", 0, 1))
sketch10.addConstraint(Sketcher.Constraint("Equal", 3, 5))
sketch10.addConstraint(Sketcher.Constraint("DistanceX", 2, 1, 2, 2, 4.0))
sketch10.addConstraint(Sketcher.Constraint("Angle", 3, Q("119.999997 deg")))
sketch10.addConstraint(Sketcher.Constraint("DistanceX", 0, 2, 1, 2, 2.0))
sketch10.addConstraint(Sketcher.Constraint("DistanceY", 1, 2, 3, 2, 5.0))
sketch10.addConstraint(Sketcher.Constraint("DistanceX", 0, 2, -1, 1, 25.1))
sketch10.addConstraint(Sketcher.Constraint("DistanceY", -1, 1, 0, 2, 8.6))
pocket9 = doc.addObject("PartDesign::Pocket", "Pocket008")
body.addObject(pocket9)
pocket9.Profile = sketch10
pocket9.Length = 25

sketch11 = doc.addObject("Sketcher::SketchObject", "Sketch010")
body.addObject(sketch11)
sketch11.AttachmentSupport = (doc.YZ_Plane, [""])
sketch11.MapMode = "FlatFace"
sketch11.AttachmentOffset = App.Placement(V(0, 0, 83), App.Rotation())
sketch11.addGeometry(Part.LineSegment(V(-50, 38.5, 0), V(-50, 13.5, 0)), False)
sketch11.addGeometry(Part.LineSegment(V(-50, 13.5, 0), V(-12.5, 13.5, 0)), False)
sketch11.addGeometry(Part.LineSegment(V(-12.5, 13.5, 0), V(-12.5, 38.5, 0)), False)
sketch11.addGeometry(Part.LineSegment(V(-12.5, 38.5, 0), V(-50, 38.5, 0)), False)
sketch11.addGeometry(Part.LineSegment(V(12.5, 38.5, 0), V(12.5, 13.5, 0)), False)
sketch11.addGeometry(Part.LineSegment(V(12.5, 13.5, 0), V(50, 13.5, 0)), False)
sketch11.addGeometry(Part.LineSegment(V(50, 13.5, 0), V(50, 38.5, 0)), False)
sketch11.addGeometry(Part.LineSegment(V(50, 38.5, 0), V(12.5, 38.5, 0)), False)
sketch11.addConstraint(Sketcher.Constraint("Coincident", 0, 2, 1, 1))
sketch11.addConstraint(Sketcher.Constraint("Coincident", 1, 2, 2, 1))
sketch11.addConstraint(Sketcher.Constraint("Coincident", 2, 2, 3, 1))
sketch11.addConstraint(Sketcher.Constraint("Coincident", 3, 2, 0, 1))
sketch11.addConstraint(Sketcher.Constraint("Coincident", 4, 2, 5, 1))
sketch11.addConstraint(Sketcher.Constraint("Coincident", 5, 2, 6, 1))
sketch11.addConstraint(Sketcher.Constraint("Coincident", 6, 2, 7, 1))
sketch11.addConstraint(Sketcher.Constraint("Coincident", 7, 2, 4, 1))
sketch11.addConstraint(Sketcher.Constraint("Vertical", 0))
sketch11.addConstraint(Sketcher.Constraint("Horizontal", 1))
sketch11.addConstraint(Sketcher.Constraint("Vertical", 2))
sketch11.addConstraint(Sketcher.Constraint("Horizontal", 3))
sketch11.addConstraint(Sketcher.Constraint("Vertical", 4))
sketch11.addConstraint(Sketcher.Constraint("Horizontal", 5))
sketch11.addConstraint(Sketcher.Constraint("Vertical", 6))
sketch11.addConstraint(Sketcher.Constraint("Horizontal", 7))
sketch11.addConstraint(Sketcher.Constraint("Symmetric", 1, 2, 4, 2, -2))
sketch11.addConstraint(Sketcher.Constraint("Symmetric", 3, 2, 6, 2, -2))
sketch11.addConstraint(Sketcher.Constraint("DistanceY", 0, 2, 0, 1, 25.0))
sketch11.addConstraint(Sketcher.Constraint("DistanceX", 1, 1, 1, 2, 37.5))
sketch11.addConstraint(Sketcher.Constraint("DistanceX", 0, 2, -1, 1, 50.0))
sketch11.addConstraint(Sketcher.Constraint("DistanceY", -1, 1, 0, 2, 13.5))
pocket10 = doc.addObject("PartDesign::Pocket", "Pocket009")
body.addObject(pocket10)
pocket10.Profile = sketch11
pocket10.Length = 20
doc.recompute()

mirrored3 = doc.addObject("PartDesign::Mirrored", "Mirrored002")
body.addObject(mirrored3)
mirrored3.Originals = [pocket8]
mirrored3.MirrorPlane = (doc.XZ_Plane, [""])
body.Tip = mirrored3
doc.recompute()

mirrored4 = doc.addObject("PartDesign::Mirrored", "Mirrored003")
body.addObject(mirrored4)
mirrored4.Originals = [pocket9]
mirrored4.MirrorPlane = (doc.XZ_Plane, [""])
body.Tip = mirrored4

sketch12 = doc.addObject("Sketcher::SketchObject", "Sketch011")
body.addObject(sketch12)
sketch12.AttachmentSupport = (doc.XZ_Plane, [""])
sketch12.MapMode = "FlatFace"
sketch12.addGeometry(Part.LineSegment(V(9, -1.5, 0), V(9, -11.5, 0)), False)
sketch12.addGeometry(Part.LineSegment(V(9, -11.5, 0), V(14, -11.5, 0)), False)
sketch12.addGeometry(Part.LineSegment(V(14, -11.5, 0), V(14, -1.5, 0)), False)
sketch12.addGeometry(Part.LineSegment(V(14, -1.5, 0), V(9, -1.5, 0)), False)
sketch12.addConstraint(Sketcher.Constraint("Coincident", 0, 2, 1, 1))
sketch12.addConstraint(Sketcher.Constraint("Coincident", 1, 2, 2, 1))
sketch12.addConstraint(Sketcher.Constraint("Coincident", 2, 2, 3, 1))
sketch12.addConstraint(Sketcher.Constraint("Coincident", 3, 2, 0, 1))
sketch12.addConstraint(Sketcher.Constraint("Vertical", 0))
sketch12.addConstraint(Sketcher.Constraint("Horizontal", 1))
sketch12.addConstraint(Sketcher.Constraint("Vertical", 2))
sketch12.addConstraint(Sketcher.Constraint("Horizontal", 3))
sketch12.addConstraint(Sketcher.Constraint("DistanceX", 1, 1, 1, 2, 5.0))
sketch12.addConstraint(Sketcher.Constraint("DistanceY", 0, 2, 0, 1, 10.0))
sketch12.addConstraint(Sketcher.Constraint("DistanceX", -1, 1, 0, 2, 9.0))
sketch12.addConstraint(Sketcher.Constraint("DistanceY", 0, 2, -1, 1, 11.5))
pad2 = doc.addObject("PartDesign::Pad", "Pad001")
body.addObject(pad2)
pad2.Profile = sketch12
pad2.Length = 10
pad2.Midplane = True

sketch13 = doc.addObject("Sketcher::SketchObject", "Sketch012")
body.addObject(sketch13)
sketch13.AttachmentSupport = (doc.XY_Plane, [""])
sketch13.MapMode = "FlatFace"
sketch13.AttachmentOffset = App.Placement(V(0, 0, 50), App.Rotation())
sketch13.addGeometry(Part.LineSegment(V(24, 0, 0), V(25.443376, -2.5, 0)), False)
sketch13.addGeometry(Part.LineSegment(V(25.443376, -2.5, 0), V(46.556624, -2.5, 0)), False)
sketch13.addGeometry(Part.LineSegment(V(46.556624, -2.5, 0), V(48, 0, 0)), False)
sketch13.addGeometry(Part.LineSegment(V(48, 0, 0), V(46.556624, 2.5, 0)), False)
sketch13.addGeometry(Part.LineSegment(V(46.556624, 2.5, 0), V(25.443376, 2.5, 0)), False)
sketch13.addGeometry(Part.LineSegment(V(25.443376, 2.5, 0), V(24, 0, 0)), False)
sketch13.addConstraint(Sketcher.Constraint("Coincident", 0, 2, 1, 1))
sketch13.addConstraint(Sketcher.Constraint("Coincident", 1, 2, 2, 1))
sketch13.addConstraint(Sketcher.Constraint("Coincident", 2, 2, 3, 1))
sketch13.addConstraint(Sketcher.Constraint("Coincident", 3, 2, 4, 1))
sketch13.addConstraint(Sketcher.Constraint("Coincident", 4, 2, 5, 1))
sketch13.addConstraint(Sketcher.Constraint("Coincident", 5, 2, 0, 1))
sketch13.addConstraint(Sketcher.Constraint("Horizontal", 1))
sketch13.addConstraint(Sketcher.Constraint("Horizontal", 4))
sketch13.addConstraint(Sketcher.Constraint("Symmetric", 1, 2, 3, 2, -1))
sketch13.addConstraint(Sketcher.Constraint("PointOnObject", 2, 2, -1))
sketch13.addConstraint(Sketcher.Constraint("PointOnObject", 5, 2, -1))
sketch13.addConstraint(Sketcher.Constraint("Parallel", 0, 3))
sketch13.addConstraint(Sketcher.Constraint("Parallel", 2, 5))
sketch13.addConstraint(Sketcher.Constraint("Angle", 0, Q("-59.999994 deg")))
sketch13.addConstraint(Sketcher.Constraint("DistanceX", -1, 1, 2, 2, 48.0))
sketch13.addConstraint(Sketcher.Constraint("DistanceX", -1, 1, 5, 2, 24.0))
sketch13.addConstraint(Sketcher.Constraint("DistanceY", 1, 2, 3, 2, 5.0))
pocket11 = doc.addObject("PartDesign::Pocket", "Pocket010")
body.addObject(pocket11)
pocket11.Profile = sketch13
pocket11.Type = "ThroughAll"

sketch14 = doc.addObject("Sketcher::SketchObject", "Sketch013")
body.addObject(sketch14)
sketch14.AttachmentSupport = (doc.YZ_Plane, [""])
sketch14.MapMode = "FlatFace"
sketch14.AttachmentOffset = App.Placement(V(0, 0, 83), App.Rotation())
sketch14.addGeometry(Part.LineSegment(V(-4.5, -1.65, 0), V(-3.200962, -3.9, 0)), False)
sketch14.addGeometry(Part.LineSegment(V(-3.200962, -3.9, 0), V(3.200962, -3.9, 0)), False)
sketch14.addGeometry(Part.LineSegment(V(3.200962, -3.9, 0), V(4.5, -1.65, 0)), False)
sketch14.addGeometry(Part.LineSegment(V(4.5, -1.65, 0), V(3.200962, 0.6, 0)), False)
sketch14.addGeometry(Part.LineSegment(V(3.200962, 0.6, 0), V(-3.200962, 0.6, 0)), False)
sketch14.addGeometry(Part.LineSegment(V(-3.200962, 0.6, 0), V(-4.5, -1.65, 0)), False)
sketch14.addGeometry(Part.LineSegment(V(-7.5, 10, 0), V(-5.479274, 6.5, 0)), False)
sketch14.addGeometry(Part.LineSegment(V(-5.479274, 6.5, 0), V(5.479274, 6.5, 0)), False)
sketch14.addGeometry(Part.LineSegment(V(5.479274, 6.5, 0), V(7.5, 10, 0)), False)
sketch14.addGeometry(Part.LineSegment(V(7.5, 10, 0), V(5.479274, 13.5, 0)), False)
sketch14.addGeometry(Part.LineSegment(V(5.479274, 13.5, 0), V(-5.479274, 13.5, 0)), False)
sketch14.addGeometry(Part.LineSegment(V(-5.479274, 13.5, 0), V(-7.5, 10, 0)), False)
sketch14.addConstraint(Sketcher.Constraint("Coincident", 0, 2, 1, 1))
sketch14.addConstraint(Sketcher.Constraint("Coincident", 1, 2, 2, 1))
sketch14.addConstraint(Sketcher.Constraint("Coincident", 2, 2, 3, 1))
sketch14.addConstraint(Sketcher.Constraint("Coincident", 3, 2, 4, 1))
sketch14.addConstraint(Sketcher.Constraint("Coincident", 4, 2, 5, 1))
sketch14.addConstraint(Sketcher.Constraint("Coincident", 5, 2, 0, 1))
sketch14.addConstraint(Sketcher.Constraint("Coincident", 6, 2, 7, 1))
sketch14.addConstraint(Sketcher.Constraint("Coincident", 7, 2, 8, 1))
sketch14.addConstraint(Sketcher.Constraint("Coincident", 8, 2, 9, 1))
sketch14.addConstraint(Sketcher.Constraint("Coincident", 9, 2, 10, 1))
sketch14.addConstraint(Sketcher.Constraint("Coincident", 10, 2, 11, 1))
sketch14.addConstraint(Sketcher.Constraint("Coincident", 11, 2, 6, 1))
sketch14.addConstraint(Sketcher.Constraint("Horizontal", 1))
sketch14.addConstraint(Sketcher.Constraint("Horizontal", 4))
sketch14.addConstraint(Sketcher.Constraint("Horizontal", 7))
sketch14.addConstraint(Sketcher.Constraint("Horizontal", 10))
sketch14.addConstraint(Sketcher.Constraint("Symmetric", 2, 2, 5, 2, -2))
sketch14.addConstraint(Sketcher.Constraint("Symmetric", 8, 2, 11, 2, -2))
sketch14.addConstraint(Sketcher.Constraint("Parallel", 0, 3))
sketch14.addConstraint(Sketcher.Constraint("Parallel", 2, 5))
sketch14.addConstraint(Sketcher.Constraint("Parallel", 3, 6))
sketch14.addConstraint(Sketcher.Constraint("Parallel", 5, 8))
sketch14.addConstraint(Sketcher.Constraint("Parallel", 6, 9))
sketch14.addConstraint(Sketcher.Constraint("Parallel", 8, 11))
sketch14.addConstraint(Sketcher.Constraint("Vertical", 1, 2, 3, 2))
sketch14.addConstraint(Sketcher.Constraint("Vertical", 0, 2, 4, 2))
sketch14.addConstraint(Sketcher.Constraint("Vertical", 7, 2, 9, 2))
sketch14.addConstraint(Sketcher.Constraint("Angle", 0, Q("-60.000002 deg")))
sketch14.addConstraint(Sketcher.Constraint("DistanceY", -1, 1, 8, 2, 10.0))
sketch14.addConstraint(Sketcher.Constraint("DistanceX", 5, 2, 2, 2, 9.0))
sketch14.addConstraint(Sketcher.Constraint("DistanceX", 2, 2, 8, 2, 3.0))
sketch14.addConstraint(Sketcher.Constraint("DistanceY", 7, 2, 9, 2, 7.0))
sketch14.addConstraint(Sketcher.Constraint("DistanceY", 0, 2, -1, 1, 3.9))
sketch14.addConstraint(Sketcher.Constraint("DistanceY", -1, 1, 3, 2, 0.6))
pocket12 = doc.addObject("PartDesign::Pocket", "Pocket011")
body.addObject(pocket12)
pocket12.Profile = sketch14
pocket12.Length = 15

sketch15 = doc.addObject("Sketcher::SketchObject", "Sketch014")
body.addObject(sketch15)
sketch15.AttachmentSupport = (doc.YZ_Plane, [""])
sketch15.MapMode = "FlatFace"
sketch15.AttachmentOffset = App.Placement(V(0, 0, 77), App.Rotation())
sketch15.addGeometry(Part.LineSegment(V(17.43005, 8.5, 0), V(17.43005, -11.5, 0)), False)
sketch15.addGeometry(Part.LineSegment(V(17.43005, -11.5, 0), V(16, -11.5, 0)), False)
sketch15.addGeometry(Part.LineSegment(V(16, -11.5, 0), V(16, 8.5, 0)), False)
sketch15.addGeometry(Part.LineSegment(V(16, 8.5, 0), V(17.43005, 8.5, 0)), False)
sketch15.addGeometry(Part.LineSegment(V(-16, 8.5, 0), V(-16, -11.5, 0)), False)
sketch15.addGeometry(Part.LineSegment(V(-16, -11.5, 0), V(-17.43005, -11.5, 0)), False)
sketch15.addGeometry(Part.LineSegment(V(-17.43005, -11.5, 0), V(-17.43005, 8.5, 0)), False)
sketch15.addGeometry(Part.LineSegment(V(-17.43005, 8.5, 0), V(-16, 8.5, 0)), False)
sketch15.addConstraint(Sketcher.Constraint("Coincident", 0, 2, 1, 1))
sketch15.addConstraint(Sketcher.Constraint("Coincident", 1, 2, 2, 1))
sketch15.addConstraint(Sketcher.Constraint("Coincident", 2, 2, 3, 1))
sketch15.addConstraint(Sketcher.Constraint("Coincident", 3, 2, 0, 1))
sketch15.addConstraint(Sketcher.Constraint("Coincident", 4, 2, 5, 1))
sketch15.addConstraint(Sketcher.Constraint("Coincident", 5, 2, 6, 1))
sketch15.addConstraint(Sketcher.Constraint("Coincident", 6, 2, 7, 1))
sketch15.addConstraint(Sketcher.Constraint("Coincident", 7, 2, 4, 1))
sketch15.addConstraint(Sketcher.Constraint("Vertical", 0))
sketch15.addConstraint(Sketcher.Constraint("Horizontal", 1))
sketch15.addConstraint(Sketcher.Constraint("Vertical", 2))
sketch15.addConstraint(Sketcher.Constraint("Horizontal", 3))
sketch15.addConstraint(Sketcher.Constraint("Vertical", 4))
sketch15.addConstraint(Sketcher.Constraint("Horizontal", 5))
sketch15.addConstraint(Sketcher.Constraint("Vertical", 6))
sketch15.addConstraint(Sketcher.Constraint("Horizontal", 7))
sketch15.addConstraint(Sketcher.Constraint("Symmetric", 1, 2, 4, 2, -2))
sketch15.addConstraint(Sketcher.Constraint("Symmetric", 3, 2, 6, 2, -2))
sketch15.addConstraint(Sketcher.Constraint("DistanceY", 0, 2, 0, 1, 20.0))
sketch15.addConstraint(Sketcher.Constraint("DistanceX", -1, 1, 1, 2, 16.0))
sketch15.addConstraint(Sketcher.Constraint("DistanceY", 0, 2, -1, 1, 11.5))
sketch15.addConstraint(Sketcher.Constraint("DistanceX", 1, 2, 1, 1, 1.43005))
pad3 = doc.addObject("PartDesign::Pad", "Pad002")
body.addObject(pad3)
pad3.Profile = sketch15
pad3.Length = 20
pad3.Reversed = True

sketch16 = doc.addObject("Sketcher::SketchObject", "Sketch015")
body.addObject(sketch16)
sketch16.AttachmentSupport = (doc.XZ_Plane, [""])
sketch16.MapMode = "FlatFace"
sketch16.addGeometry(Part.LineSegment(V(83, 3.486751, 0), V(78, 0.6, 0)), False)
sketch16.addGeometry(Part.LineSegment(V(78, 0.6, 0), V(78, -3.9, 0)), False)
sketch16.addGeometry(Part.LineSegment(V(78, -3.9, 0), V(83, -6.786751, 0)), False)
sketch16.addGeometry(Part.LineSegment(V(83, -6.786751, 0), V(83, 3.486751, 0)), False)
sketch16.addConstraint(Sketcher.Constraint("Coincident", 0, 2, 1, 1))
sketch16.addConstraint(Sketcher.Constraint("Coincident", 1, 2, 2, 1))
sketch16.addConstraint(Sketcher.Constraint("Coincident", 2, 2, 3, 1))
sketch16.addConstraint(Sketcher.Constraint("Coincident", 3, 2, 0, 1))
sketch16.addConstraint(Sketcher.Constraint("Vertical", 1))
sketch16.addConstraint(Sketcher.Constraint("Vertical", 3))
sketch16.addConstraint(Sketcher.Constraint("Equal", 0, 2))
sketch16.addConstraint(Sketcher.Constraint("Angle", 0, Q("-150.000003 deg")))
sketch16.addConstraint(Sketcher.Constraint("DistanceY", 1, 2, 1, 1, 4.5))
sketch16.addConstraint(Sketcher.Constraint("DistanceX", -1, 1, 0, 2, 78.0))
sketch16.addConstraint(Sketcher.Constraint("DistanceX", -1, 1, 2, 2, 83.0))
sketch16.addConstraint(Sketcher.Constraint("DistanceY", -1, 1, 0, 2, 0.6))
pocket13 = doc.addObject("PartDesign::Pocket", "Pocket012")
body.addObject(pocket13)
pocket13.Profile = sketch16
pocket13.Length = 18
pocket13.Midplane = True
doc.recompute()

chamfer = doc.addObject("PartDesign::Chamfer", "Chamfer")
body.addObject(chamfer)
chamfer.Base = (pocket13, edges_at(pocket13, [(78, -9, -1.65), (78, 9, -1.65)]))
chamfer.Size = 3

sketch17 = doc.addObject("Sketcher::SketchObject", "Sketch016")
body.addObject(sketch17)
sketch17.AttachmentSupport = (doc.YZ_Plane, [""])
sketch17.MapMode = "FlatFace"
sketch17.AttachmentOffset = App.Placement(V(0, 0, -30), App.Rotation())
sketch17.addGeometry(Part.LineSegment(V(17.5, 13.5, 0), V(13.5, 3, 0)), False)
sketch17.addGeometry(Part.LineSegment(V(13.5, 3, 0), V(6, 13.5, 0)), False)
sketch17.addGeometry(Part.LineSegment(V(6, 13.5, 0), V(17.5, 13.5, 0)), False)
sketch17.addGeometry(Part.LineSegment(V(-6, 13.5, 0), V(-13.5, 3, 0)), False)
sketch17.addGeometry(Part.LineSegment(V(-13.5, 3, 0), V(-17.5, 13.5, 0)), False)
sketch17.addGeometry(Part.LineSegment(V(-17.5, 13.5, 0), V(-6, 13.5, 0)), False)
sketch17.addConstraint(Sketcher.Constraint("Coincident", 0, 2, 1, 1))
sketch17.addConstraint(Sketcher.Constraint("Coincident", 1, 2, 2, 1))
sketch17.addConstraint(Sketcher.Constraint("Coincident", 2, 2, 0, 1))
sketch17.addConstraint(Sketcher.Constraint("Coincident", 3, 2, 4, 1))
sketch17.addConstraint(Sketcher.Constraint("Coincident", 4, 2, 5, 1))
sketch17.addConstraint(Sketcher.Constraint("Coincident", 5, 2, 3, 1))
sketch17.addConstraint(Sketcher.Constraint("Horizontal", 2))
sketch17.addConstraint(Sketcher.Constraint("Horizontal", 5))
sketch17.addConstraint(Sketcher.Constraint("Symmetric", 0, 2, 3, 2, -2))
sketch17.addConstraint(Sketcher.Constraint("Symmetric", 2, 2, 4, 2, -2))
sketch17.addConstraint(Sketcher.Constraint("Equal", 2, 5))
sketch17.addConstraint(Sketcher.Constraint("DistanceX", 2, 1, 2, 2, 11.5))
sketch17.addConstraint(Sketcher.Constraint("DistanceY", -1, 1, 0, 2, 3.0))
sketch17.addConstraint(Sketcher.Constraint("DistanceX", -1, 1, 1, 2, 6.0))
sketch17.addConstraint(Sketcher.Constraint("DistanceX", 0, 2, 2, 2, 4.0))
sketch17.addConstraint(Sketcher.Constraint("DistanceY", -1, 1, 1, 2, 13.5))
pocket14 = doc.addObject("PartDesign::Pocket", "Pocket013")
body.addObject(pocket14)
pocket14.Profile = sketch17
pocket14.Length = 15
pocket14.Reversed = True

sketch18 = doc.addObject("Sketcher::SketchObject", "Sketch017")
body.addObject(sketch18)
sketch18.AttachmentSupport = (doc.XY_Plane, [""])
sketch18.MapMode = "FlatFace"
sketch18.AttachmentOffset = App.Placement(V(0, 0, 50), App.Rotation())
sketch18.addGeometry(Part.LineSegment(V(-21, 17.5, 0), V(-21, 6, 0)), False)
sketch18.addGeometry(Part.LineSegment(V(-21, 6, 0), V(0, 6, 0)), False)
sketch18.addGeometry(Part.LineSegment(V(0, 6, 0), V(0, 17.5, 0)), False)
sketch18.addGeometry(Part.LineSegment(V(0, 17.5, 0), V(-21, 17.5, 0)), False)
sketch18.addGeometry(Part.LineSegment(V(-21, -6, 0), V(-21, -17.5, 0)), False)
sketch18.addGeometry(Part.LineSegment(V(-21, -17.5, 0), V(0, -17.5, 0)), False)
sketch18.addGeometry(Part.LineSegment(V(0, -17.5, 0), V(0, -6, 0)), False)
sketch18.addGeometry(Part.LineSegment(V(0, -6, 0), V(-21, -6, 0)), False)
sketch18.addConstraint(Sketcher.Constraint("Coincident", 0, 2, 1, 1))
sketch18.addConstraint(Sketcher.Constraint("Coincident", 1, 2, 2, 1))
sketch18.addConstraint(Sketcher.Constraint("Coincident", 2, 2, 3, 1))
sketch18.addConstraint(Sketcher.Constraint("Coincident", 3, 2, 0, 1))
sketch18.addConstraint(Sketcher.Constraint("Coincident", 4, 2, 5, 1))
sketch18.addConstraint(Sketcher.Constraint("Coincident", 5, 2, 6, 1))
sketch18.addConstraint(Sketcher.Constraint("Coincident", 6, 2, 7, 1))
sketch18.addConstraint(Sketcher.Constraint("Coincident", 7, 2, 4, 1))
sketch18.addConstraint(Sketcher.Constraint("Vertical", 0))
sketch18.addConstraint(Sketcher.Constraint("Horizontal", 1))
sketch18.addConstraint(Sketcher.Constraint("Vertical", 2))
sketch18.addConstraint(Sketcher.Constraint("Horizontal", 3))
sketch18.addConstraint(Sketcher.Constraint("Vertical", 4))
sketch18.addConstraint(Sketcher.Constraint("Horizontal", 5))
sketch18.addConstraint(Sketcher.Constraint("Vertical", 6))
sketch18.addConstraint(Sketcher.Constraint("Horizontal", 7))
sketch18.addConstraint(Sketcher.Constraint("Symmetric", 2, 2, 5, 2, -1, 1))
sketch18.addConstraint(Sketcher.Constraint("Symmetric", 1, 2, 6, 2, -1))
sketch18.addConstraint(Sketcher.Constraint("Vertical", 3, 2, 4, 2))
sketch18.addConstraint(Sketcher.Constraint("DistanceX", 1, 1, 1, 2, 21.0))
sketch18.addConstraint(Sketcher.Constraint("DistanceY", 0, 2, 0, 1, 11.5))
sketch18.addConstraint(Sketcher.Constraint("DistanceY", -1, 1, 0, 2, 6.0))
pocket15 = doc.addObject("PartDesign::Pocket", "Pocket014")
body.addObject(pocket15)
pocket15.Profile = sketch18
pocket15.Length = 41

doc.recompute()
